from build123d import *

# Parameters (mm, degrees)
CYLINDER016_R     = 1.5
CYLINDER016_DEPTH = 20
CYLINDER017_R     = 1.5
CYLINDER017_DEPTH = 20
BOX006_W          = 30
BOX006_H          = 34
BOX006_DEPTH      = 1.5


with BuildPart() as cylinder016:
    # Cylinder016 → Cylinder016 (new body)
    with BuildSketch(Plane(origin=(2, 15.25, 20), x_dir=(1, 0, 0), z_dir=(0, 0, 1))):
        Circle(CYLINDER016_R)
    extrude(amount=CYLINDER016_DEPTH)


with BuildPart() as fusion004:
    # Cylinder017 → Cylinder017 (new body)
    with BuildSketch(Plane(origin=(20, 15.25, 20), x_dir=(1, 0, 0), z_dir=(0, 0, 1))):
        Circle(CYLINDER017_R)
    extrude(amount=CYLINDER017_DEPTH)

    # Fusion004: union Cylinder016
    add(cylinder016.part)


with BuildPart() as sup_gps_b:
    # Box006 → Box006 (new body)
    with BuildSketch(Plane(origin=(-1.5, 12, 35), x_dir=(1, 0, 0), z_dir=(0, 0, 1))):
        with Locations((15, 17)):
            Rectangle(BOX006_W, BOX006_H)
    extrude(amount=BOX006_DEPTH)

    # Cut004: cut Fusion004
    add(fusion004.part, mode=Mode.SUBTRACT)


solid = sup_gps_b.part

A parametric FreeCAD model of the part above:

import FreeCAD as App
import Part
import Sketcher
from FreeCAD import Vector
Q = App.Units.Quantity


def add_polygon(sketch, points):
    """Adds a closed chain of lines whose ends are joined by coincident constraints."""
    first, n = sketch.GeometryCount, len(points)
    for a, b in zip(points, points[1:] + points[:1]):
        sketch.addGeometry(Part.LineSegment(App.Vector(*a, 0), App.Vector(*b, 0)), False)
    for i in range(n):
        sketch.addConstraint(Sketcher.Constraint("Coincident", first + i, 2, first + (i + 1) % n, 1))

doc = App.newDocument("Part")
body = doc.addObject("PartDesign::Body", "Body")

sketch1 = body.newObject("Sketcher::SketchObject", "Sketch")
sketch1.AttachmentSupport = (doc.getObject("XY_Plane"), [""])
sketch1.MapMode = "FlatFace"
sketch1.AttachmentOffset = App.Placement(Vector(0, 0, 20), App.Rotation())
sketch1.addGeometry(Part.Circle(Vector(2, 15.25, 0), Vector(0, 0, 1), 1.5), False)
sketch1.addConstraint(Sketcher.Constraint("Diameter", 0, Q("3 mm")))
sketch1.addConstraint(Sketcher.Constraint("DistanceX", -1, 1, 0, 3, Q("2 mm")))
sketch1.addConstraint(Sketcher.Constraint("DistanceY", -1, 1, 0, 3, Q("15.25 mm")))
pad1 = body.newObject("PartDesign::Pad", "Pad")
pad1.Profile = sketch1
pad1.Length = 20
body2 = doc.addObject("PartDesign::Body", "Body001")
body2.AllowCompound = True

sketch2 = body2.newObject("Sketcher::SketchObject", "Sketch001")
sketch2.AttachmentSupport = (doc.getObject("XY_Plane001"), [""])
sketch2.MapMode = "FlatFace"
sketch2.AttachmentOffset = App.Placement(Vector(0, 0, 20), App.Rotation())
sketch2.addGeometry(Part.Circle(Vector(20, 15.25, 0), Vector(0, 0, 1), 1.5), False)
sketch2.addConstraint(Sketcher.Constraint("Diameter", 0, Q("3 mm")))
sketch2.addConstraint(Sketcher.Constraint("DistanceX", -1, 1, 0, 3, Q("20 mm")))
sketch2.addConstraint(Sketcher.Constraint("DistanceY", -1, 1, 0, 3, Q("15.25 mm")))
pad2 = body2.newObject("PartDesign::Pad", "Pad001")
pad2.Profile = sketch2
pad2.Length = 20
doc.recompute()

boolean = body2.newObject("PartDesign::Boolean", "Boolean")
boolean.Type = "Fuse"
boolean.addObjects([body])
body3 = doc.addObject("PartDesign::Body", "Body002")

sketch3 = body3.newObject("Sketcher::SketchObject", "Sketch002")
sketch3.AttachmentSupport = (doc.getObject("XY_Plane002"), [""])
sketch3.MapMode = "FlatFace"
sketch3.AttachmentOffset = App.Placement(Vector(0, 0, 35), App.Rotation())
add_polygon(sketch3, [(-1.5, 46), (-1.5, 12), (28.5, 12), (28.5, 46)])
sketch3.addConstraint(Sketcher.Constraint("Vertical", 0))
sketch3.addConstraint(Sketcher.Constraint("Horizontal", 1))
sketch3.addConstraint(Sketcher.Constraint("Vertical", 2))
sketch3.addConstraint(Sketcher.Constraint("Horizontal", 3))
sketch3.addConstraint(Sketcher.Constraint("DistanceX", 1, 1, 1, 2, Q("30 mm")))
sketch3.addConstraint(Sketcher.Constraint("DistanceY", 0, 2, 0, 1, Q("34 mm")))
sketch3.addConstraint(Sketcher.Constraint("DistanceY", -1, 1, 0, 2, Q("12 mm")))
sketch3.addConstraint(Sketcher.Constraint("DistanceX", 0, 2, -1, 1, Q("1.5 mm")))
pad3 = body3.newObject("PartDesign::Pad", "Pad002")
pad3.Profile = sketch3
pad3.Length = 1.5
doc.recompute()

boolean2 = body3.newObject("PartDesign::Boolean", "Boolean001")
boolean2.Type = "Cut"
boolean2.addObjects([body2])

doc.recompute()
